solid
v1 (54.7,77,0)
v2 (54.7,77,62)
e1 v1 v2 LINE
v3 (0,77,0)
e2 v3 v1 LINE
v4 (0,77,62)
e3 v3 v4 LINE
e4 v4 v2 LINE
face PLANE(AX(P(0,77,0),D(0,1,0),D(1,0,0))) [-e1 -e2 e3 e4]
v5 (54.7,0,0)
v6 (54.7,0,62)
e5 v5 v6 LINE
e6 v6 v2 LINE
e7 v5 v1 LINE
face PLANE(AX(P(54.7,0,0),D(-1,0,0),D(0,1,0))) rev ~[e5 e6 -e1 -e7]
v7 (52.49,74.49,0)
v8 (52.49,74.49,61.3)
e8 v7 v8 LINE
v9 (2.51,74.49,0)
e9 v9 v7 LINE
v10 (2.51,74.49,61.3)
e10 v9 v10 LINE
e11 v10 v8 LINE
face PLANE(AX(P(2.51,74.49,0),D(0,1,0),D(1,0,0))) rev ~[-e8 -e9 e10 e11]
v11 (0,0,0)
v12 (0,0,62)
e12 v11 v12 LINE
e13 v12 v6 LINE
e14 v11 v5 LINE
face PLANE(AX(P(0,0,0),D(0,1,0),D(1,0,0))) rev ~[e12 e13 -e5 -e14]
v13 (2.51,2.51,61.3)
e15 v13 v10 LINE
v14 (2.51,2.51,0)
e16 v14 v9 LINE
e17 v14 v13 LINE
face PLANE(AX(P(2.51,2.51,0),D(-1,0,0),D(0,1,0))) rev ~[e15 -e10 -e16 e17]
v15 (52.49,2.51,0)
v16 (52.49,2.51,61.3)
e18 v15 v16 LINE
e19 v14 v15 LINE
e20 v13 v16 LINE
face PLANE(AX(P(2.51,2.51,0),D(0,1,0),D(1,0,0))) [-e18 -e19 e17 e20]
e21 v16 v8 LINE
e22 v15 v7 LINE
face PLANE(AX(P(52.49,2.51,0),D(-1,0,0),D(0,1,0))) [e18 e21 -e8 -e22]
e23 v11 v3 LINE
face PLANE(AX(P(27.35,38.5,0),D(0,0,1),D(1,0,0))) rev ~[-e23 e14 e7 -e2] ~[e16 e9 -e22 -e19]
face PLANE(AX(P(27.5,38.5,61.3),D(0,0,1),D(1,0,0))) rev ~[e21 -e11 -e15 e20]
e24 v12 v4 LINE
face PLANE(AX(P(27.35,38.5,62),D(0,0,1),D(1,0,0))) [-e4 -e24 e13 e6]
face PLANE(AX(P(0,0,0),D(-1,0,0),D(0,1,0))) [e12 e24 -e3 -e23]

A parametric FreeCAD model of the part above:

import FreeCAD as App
import Part
import Sketcher


def add_polygon(sketch, points):
    """Adds a closed chain of lines whose ends are joined by coincident constraints."""
    first, n = sketch.GeometryCount, len(points)
    for a, b in zip(points, points[1:] + points[:1]):
        sketch.addGeometry(Part.LineSegment(App.Vector(*a, 0), App.Vector(*b, 0)), False)
    for i in range(n):
        sketch.addConstraint(Sketcher.Constraint("Coincident", first + i, 2, first + (i + 1) % n, 1))

doc = App.newDocument("Part")
params = doc.addObject("Spreadsheet::Sheet", "Params")
for row, (alias, value) in enumerate([
    ("sketch1_height", "77 mm"),
    ("sketch1_width", "54.7 mm"),
    ("pad1_length", "62 mm"),
    ("sketch2_width", "49.98 mm"),
    ("sketch2_height", "71.98 mm"),
    ("pocket1_length", "61.3 mm"),
], start=1):
    params.set(f"A{row}", alias)
    params.set(f"B{row}", "=" + value)
    params.setAlias(f"B{row}", alias)

body = doc.addObject("PartDesign::Body", "Body")

# Sketch on XY plane
sketch1 = doc.addObject("Sketcher::SketchObject", "Sketch")
body.addObject(sketch1)
sketch1.AttachmentSupport = (doc.XY_Plane, [""])
sketch1.MapMode = "FlatFace"
add_polygon(sketch1, [(0, 77), (0, 0), (55, 0), (55, 77)])  # lines 0-3
sketch1.addConstraint([
    Sketcher.Constraint("Vertical", 0),
    Sketcher.Constraint("Horizontal", 1),
    Sketcher.Constraint("Vertical", 2),
    Sketcher.Constraint("Horizontal", 3),
    Sketcher.Constraint("Coincident", 0, 2, -1, 1),
    Sketcher.Constraint("DistanceY", 0, 2, 0, 1, 77.0),
    Sketcher.Constraint("DistanceX", 1, 1, 1, 2, 54.7),
])
sketch1.setExpression("Constraints[9]", "Params.sketch1_height")
sketch1.setExpression("Constraints[10]", "Params.sketch1_width")
pad1 = doc.addObject("PartDesign::Pad", "Pad")
body.addObject(pad1)
pad1.Profile = sketch1
pad1.setExpression("Length", "Params.pad1_length")

# Sketch on XY plane
sketch2 = doc.addObject("Sketcher::SketchObject", "Sketch001")
body.addObject(sketch2)
sketch2.AttachmentSupport = (doc.XY_Plane, [""])
sketch2.MapMode = "FlatFace"
add_polygon(sketch2, [(3, 74), (3, 3), (52, 3), (52, 74)])  # lines 0-3
sketch2.addConstraint([
    Sketcher.Constraint("Vertical", 0),
    Sketcher.Constraint("Horizontal", 1),
    Sketcher.Constraint("Vertical", 2),
    Sketcher.Constraint("Horizontal", 3),
    Sketcher.Constraint("DistanceX", 1, 1, 1, 2, 49.98),
    Sketcher.Constraint("DistanceY", 0, 2, 0, 1, 71.98),
    Sketcher.Constraint("DistanceX", -1, 1, 0, 2, 2.51),
    Sketcher.Constraint("DistanceY", -1, 1, 0, 2, 2.51),
])
sketch2.setExpression("Constraints[8]", "Params.sketch2_width")
sketch2.setExpression("Constraints[9]", "Params.sketch2_height")
pocket1 = doc.addObject("PartDesign::Pocket", "Pocket")
body.addObject(pocket1)
pocket1.Profile = sketch2
pocket1.setExpression("Length", "Params.pocket1_length")
pocket1.Reversed = True

doc.recompute()
